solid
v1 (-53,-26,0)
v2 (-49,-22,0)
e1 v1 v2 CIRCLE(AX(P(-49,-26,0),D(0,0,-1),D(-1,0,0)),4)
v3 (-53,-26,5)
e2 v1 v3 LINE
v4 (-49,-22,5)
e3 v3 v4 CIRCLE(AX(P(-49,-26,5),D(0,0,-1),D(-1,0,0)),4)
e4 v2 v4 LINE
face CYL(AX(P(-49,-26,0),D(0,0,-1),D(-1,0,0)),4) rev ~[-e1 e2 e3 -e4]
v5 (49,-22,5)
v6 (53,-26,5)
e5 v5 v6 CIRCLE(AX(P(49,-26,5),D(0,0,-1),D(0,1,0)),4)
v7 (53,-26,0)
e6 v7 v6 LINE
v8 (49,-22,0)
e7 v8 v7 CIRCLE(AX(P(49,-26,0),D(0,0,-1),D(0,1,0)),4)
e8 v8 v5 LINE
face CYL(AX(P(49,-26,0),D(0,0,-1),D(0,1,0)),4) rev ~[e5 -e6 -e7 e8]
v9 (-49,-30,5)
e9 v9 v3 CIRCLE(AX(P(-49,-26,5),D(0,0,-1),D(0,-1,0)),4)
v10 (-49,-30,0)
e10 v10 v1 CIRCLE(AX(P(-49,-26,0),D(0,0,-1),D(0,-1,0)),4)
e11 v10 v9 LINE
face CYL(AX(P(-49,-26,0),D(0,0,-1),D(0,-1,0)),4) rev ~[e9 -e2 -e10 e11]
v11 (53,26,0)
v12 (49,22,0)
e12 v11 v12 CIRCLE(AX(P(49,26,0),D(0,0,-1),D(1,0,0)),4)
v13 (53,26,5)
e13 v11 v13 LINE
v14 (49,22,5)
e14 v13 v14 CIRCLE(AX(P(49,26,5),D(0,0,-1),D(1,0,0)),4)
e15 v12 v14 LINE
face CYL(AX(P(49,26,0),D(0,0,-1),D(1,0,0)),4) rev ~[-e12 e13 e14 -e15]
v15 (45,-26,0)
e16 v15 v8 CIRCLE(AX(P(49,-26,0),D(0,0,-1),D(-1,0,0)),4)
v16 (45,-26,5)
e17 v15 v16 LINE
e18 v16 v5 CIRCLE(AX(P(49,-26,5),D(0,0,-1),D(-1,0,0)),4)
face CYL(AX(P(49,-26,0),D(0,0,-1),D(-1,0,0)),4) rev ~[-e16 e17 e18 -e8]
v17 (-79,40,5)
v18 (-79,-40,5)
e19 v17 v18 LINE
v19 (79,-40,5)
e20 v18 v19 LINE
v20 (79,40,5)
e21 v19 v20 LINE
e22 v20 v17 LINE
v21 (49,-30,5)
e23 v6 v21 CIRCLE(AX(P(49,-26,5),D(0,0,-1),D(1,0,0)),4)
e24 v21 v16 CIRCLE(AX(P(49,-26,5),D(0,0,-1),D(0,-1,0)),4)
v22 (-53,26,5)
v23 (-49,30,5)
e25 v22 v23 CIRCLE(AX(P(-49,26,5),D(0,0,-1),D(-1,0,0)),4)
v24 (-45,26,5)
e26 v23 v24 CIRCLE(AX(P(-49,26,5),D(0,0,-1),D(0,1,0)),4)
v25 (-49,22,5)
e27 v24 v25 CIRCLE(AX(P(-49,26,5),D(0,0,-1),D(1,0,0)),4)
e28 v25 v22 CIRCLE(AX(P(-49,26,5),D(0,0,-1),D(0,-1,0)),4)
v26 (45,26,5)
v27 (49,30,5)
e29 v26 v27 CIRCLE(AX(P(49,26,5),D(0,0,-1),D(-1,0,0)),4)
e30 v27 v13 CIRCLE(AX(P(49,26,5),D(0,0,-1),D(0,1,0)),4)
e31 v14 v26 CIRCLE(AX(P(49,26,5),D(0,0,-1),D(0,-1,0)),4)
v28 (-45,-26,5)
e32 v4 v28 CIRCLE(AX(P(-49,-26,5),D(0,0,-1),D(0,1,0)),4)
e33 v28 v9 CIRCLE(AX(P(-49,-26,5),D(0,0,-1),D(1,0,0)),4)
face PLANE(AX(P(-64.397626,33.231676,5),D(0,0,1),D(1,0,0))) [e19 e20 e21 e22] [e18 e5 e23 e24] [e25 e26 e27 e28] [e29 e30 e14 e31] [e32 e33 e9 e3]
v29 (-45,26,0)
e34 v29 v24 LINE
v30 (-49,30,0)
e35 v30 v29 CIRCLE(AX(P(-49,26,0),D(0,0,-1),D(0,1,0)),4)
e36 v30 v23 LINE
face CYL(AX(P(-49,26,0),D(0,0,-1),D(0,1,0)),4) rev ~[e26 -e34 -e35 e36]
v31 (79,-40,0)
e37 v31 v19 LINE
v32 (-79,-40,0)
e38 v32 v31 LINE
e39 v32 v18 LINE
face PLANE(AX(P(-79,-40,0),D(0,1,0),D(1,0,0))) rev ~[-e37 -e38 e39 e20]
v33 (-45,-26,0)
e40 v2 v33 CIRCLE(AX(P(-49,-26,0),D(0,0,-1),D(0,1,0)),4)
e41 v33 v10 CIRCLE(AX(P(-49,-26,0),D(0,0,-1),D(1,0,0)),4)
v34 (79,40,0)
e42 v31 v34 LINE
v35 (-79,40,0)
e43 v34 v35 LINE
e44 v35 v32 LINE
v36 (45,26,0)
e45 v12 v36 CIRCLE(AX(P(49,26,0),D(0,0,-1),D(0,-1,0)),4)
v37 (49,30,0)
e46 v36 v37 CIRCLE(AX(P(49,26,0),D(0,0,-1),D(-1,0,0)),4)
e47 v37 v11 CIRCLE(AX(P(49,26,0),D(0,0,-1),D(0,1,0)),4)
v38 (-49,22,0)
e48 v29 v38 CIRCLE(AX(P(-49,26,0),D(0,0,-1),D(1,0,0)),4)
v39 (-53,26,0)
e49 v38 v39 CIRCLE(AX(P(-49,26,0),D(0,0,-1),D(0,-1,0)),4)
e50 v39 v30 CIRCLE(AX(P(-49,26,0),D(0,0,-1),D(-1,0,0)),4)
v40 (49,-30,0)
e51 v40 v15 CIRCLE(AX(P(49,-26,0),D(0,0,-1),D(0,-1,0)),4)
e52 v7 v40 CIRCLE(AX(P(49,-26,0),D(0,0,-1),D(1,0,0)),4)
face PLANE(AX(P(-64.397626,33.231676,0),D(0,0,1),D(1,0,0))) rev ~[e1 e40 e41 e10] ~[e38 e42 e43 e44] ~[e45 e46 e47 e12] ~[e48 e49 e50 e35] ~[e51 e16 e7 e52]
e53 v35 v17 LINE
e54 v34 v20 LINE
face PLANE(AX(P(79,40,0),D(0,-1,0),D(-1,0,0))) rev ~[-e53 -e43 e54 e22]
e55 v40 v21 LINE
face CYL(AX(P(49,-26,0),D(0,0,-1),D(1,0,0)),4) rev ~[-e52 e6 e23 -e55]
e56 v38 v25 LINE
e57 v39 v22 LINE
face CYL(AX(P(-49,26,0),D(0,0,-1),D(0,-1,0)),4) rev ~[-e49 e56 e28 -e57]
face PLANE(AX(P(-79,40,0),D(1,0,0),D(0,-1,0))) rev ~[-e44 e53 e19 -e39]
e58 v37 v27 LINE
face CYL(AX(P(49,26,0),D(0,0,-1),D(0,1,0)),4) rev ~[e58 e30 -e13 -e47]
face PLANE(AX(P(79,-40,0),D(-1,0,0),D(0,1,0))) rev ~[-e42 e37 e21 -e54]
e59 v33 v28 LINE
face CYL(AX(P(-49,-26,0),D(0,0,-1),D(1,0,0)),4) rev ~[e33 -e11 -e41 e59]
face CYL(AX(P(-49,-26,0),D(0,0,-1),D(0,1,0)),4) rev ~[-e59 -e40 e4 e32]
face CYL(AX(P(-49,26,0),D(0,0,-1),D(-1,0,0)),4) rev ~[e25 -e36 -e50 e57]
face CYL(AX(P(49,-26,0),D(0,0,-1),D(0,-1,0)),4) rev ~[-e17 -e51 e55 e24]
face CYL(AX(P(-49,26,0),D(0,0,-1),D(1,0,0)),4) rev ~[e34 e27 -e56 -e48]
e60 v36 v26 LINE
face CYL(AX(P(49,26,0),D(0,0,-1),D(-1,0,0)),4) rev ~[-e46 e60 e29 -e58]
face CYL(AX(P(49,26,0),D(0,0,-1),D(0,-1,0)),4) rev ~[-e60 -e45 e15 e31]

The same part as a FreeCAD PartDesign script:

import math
import FreeCAD as App
import Part
import Sketcher
from FreeCAD import Vector

doc = App.newDocument("Part")
params = doc.addObject("Spreadsheet::Sheet", "Params")
for row, (alias, value) in enumerate([
    ("sketch1_radius", "4 mm"),
    ("sketch1_width", "158 mm"),
    ("sketch1_height", "80 mm"),
    ("pad1_length", "5 mm"),
], start=1):
    params.set(f"A{row}", alias)
    params.set(f"B{row}", "=" + value)
    params.setAlias(f"B{row}", alias)

body = doc.addObject("PartDesign::Body", "Body")

# Sketch on XY plane
sketch1 = body.newObject("Sketcher::SketchObject", "Sketch")
sketch1.AttachmentSupport = (doc.getObject("XY_Plane"), [""])
sketch1.MapMode = "FlatFace"
sketch1.addGeometry(Part.LineSegment(Vector(-79, 40, 0), Vector(-79, -40, 0)), False)
sketch1.addGeometry(Part.LineSegment(Vector(-79, -40, 0), Vector(79, -40, 0)), False)
sketch1.addGeometry(Part.LineSegment(Vector(79, -40, 0), Vector(79, 40, 0)), False)
sketch1.addGeometry(Part.LineSegment(Vector(79, 40, 0), Vector(-79, 40, 0)), False)
sketch1.addGeometry(Part.ArcOfCircle(Part.Circle(Vector(-49, -26, 0), Vector(0, 0, 1), 4), math.radians(90), math.radians(180)), False)
sketch1.addGeometry(Part.ArcOfCircle(Part.Circle(Vector(-49, -26, 0), Vector(0, 0, 1), 4), math.radians(0), math.radians(90)), False)
sketch1.addGeometry(Part.ArcOfCircle(Part.Circle(Vector(-49, -26, 0), Vector(0, 0, 1), 4), math.radians(-90), math.radians(0)), False)
sketch1.addGeometry(Part.ArcOfCircle(Part.Circle(Vector(-49, -26, 0), Vector(0, 0, 1), 4), math.radians(180), math.radians(270)), False)
sketch1.addGeometry(Part.ArcOfCircle(Part.Circle(Vector(49, -26, 0), Vector(0, 0, 1), 4), math.radians(90), math.radians(180)), False)
sketch1.addGeometry(Part.ArcOfCircle(Part.Circle(Vector(49, -26, 0), Vector(0, 0, 1), 4), math.radians(0), math.radians(90)), False)
sketch1.addGeometry(Part.ArcOfCircle(Part.Circle(Vector(49, -26, 0), Vector(0, 0, 1), 4), math.radians(-90), math.radians(0)), False)
sketch1.addGeometry(Part.ArcOfCircle(Part.Circle(Vector(49, -26, 0), Vector(0, 0, 1), 4), math.radians(180), math.radians(270)), False)
sketch1.addGeometry(Part.ArcOfCircle(Part.Circle(Vector(49, 26, 0), Vector(0, 0, 1), 4), math.radians(180), math.radians(270)), False)
sketch1.addGeometry(Part.ArcOfCircle(Part.Circle(Vector(49, 26, 0), Vector(0, 0, 1), 4), math.radians(90), math.radians(180)), False)
sketch1.addGeometry(Part.ArcOfCircle(Part.Circle(Vector(49, 26, 0), Vector(0, 0, 1), 4), math.radians(0), math.radians(90)), False)
sketch1.addGeometry(Part.ArcOfCircle(Part.Circle(Vector(49, 26, 0), Vector(0, 0, 1), 4), math.radians(-90), math.radians(0)), False)
sketch1.addGeometry(Part.ArcOfCircle(Part.Circle(Vector(-49, 26, 0), Vector(0, 0, 1), 4), math.radians(-90), math.radians(0)), False)
sketch1.addGeometry(Part.ArcOfCircle(Part.Circle(Vector(-49, 26, 0), Vector(0, 0, 1), 4), math.radians(180), math.radians(270)), False)
sketch1.addGeometry(Part.ArcOfCircle(Part.Circle(Vector(-49, 26, 0), Vector(0, 0, 1), 4), math.radians(90), math.radians(180)), False)
sketch1.addGeometry(Part.ArcOfCircle(Part.Circle(Vector(-49, 26, 0), Vector(0, 0, 1), 4), math.radians(0), math.radians(90)), False)
sketch1.addConstraint(Sketcher.Constraint("Coincident", 0, 2, 1, 1))
sketch1.addConstraint(Sketcher.Constraint("Coincident", 1, 2, 2, 1))
sketch1.addConstraint(Sketcher.Constraint("Coincident", 2, 2, 3, 1))
sketch1.addConstraint(Sketcher.Constraint("Coincident", 3, 2, 0, 1))
sketch1.addConstraint(Sketcher.Constraint("Tangent", 4, 1, 5, 2))
sketch1.addConstraint(Sketcher.Constraint("Tangent", 5, 1, 6, 2))
sketch1.addConstraint(Sketcher.Constraint("Tangent", 6, 1, 7, 2))
sketch1.addConstraint(Sketcher.Constraint("Tangent", 7, 1, 4, 2))
sketch1.addConstraint(Sketcher.Constraint("Tangent", 8, 1, 9, 2))
sketch1.addConstraint(Sketcher.Constraint("Tangent", 9, 1, 10, 2))
sketch1.addConstraint(Sketcher.Constraint("Tangent", 10, 1, 11, 2))
sketch1.addConstraint(Sketcher.Constraint("Tangent", 11, 1, 8, 2))
sketch1.addConstraint(Sketcher.Constraint("Tangent", 12, 1, 13, 2))
sketch1.addConstraint(Sketcher.Constraint("Tangent", 13, 1, 14, 2))
sketch1.addConstraint(Sketcher.Constraint("Tangent", 14, 1, 15, 2))
sketch1.addConstraint(Sketcher.Constraint("Tangent", 15, 1, 12, 2))
sketch1.addConstraint(Sketcher.Constraint("Tangent", 16, 1, 17, 2))
sketch1.addConstraint(Sketcher.Constraint("Tangent", 17, 1, 18, 2))
sketch1.addConstraint(Sketcher.Constraint("Tangent", 18, 1, 19, 2))
sketch1.addConstraint(Sketcher.Constraint("Tangent", 19, 1, 16, 2))
sketch1.addConstraint(Sketcher.Constraint("Vertical", 0))
sketch1.addConstraint(Sketcher.Constraint("Horizontal", 1))
sketch1.addConstraint(Sketcher.Constraint("Vertical", 2))
sketch1.addConstraint(Sketcher.Constraint("Horizontal", 3))
sketch1.addConstraint(Sketcher.Constraint("Equal", 4, 5))
sketch1.addConstraint(Sketcher.Constraint("Equal", 7, 8))
sketch1.addConstraint(Sketcher.Constraint("Equal", 8, 9))
sketch1.addConstraint(Sketcher.Constraint("Equal", 11, 12))
sketch1.addConstraint(Sketcher.Constraint("Equal", 12, 13))
sketch1.addConstraint(Sketcher.Constraint("Equal", 15, 16))
sketch1.addConstraint(Sketcher.Constraint("Equal", 16, 17))
sketch1.addConstraint(Sketcher.Constraint("Symmetric", 4, 3, 12, 3, -1, 1))
sketch1.addConstraint(Sketcher.Constraint("Symmetric", 8, 3, 16, 3, -1, 1))
sketch1.addConstraint(Sketcher.Constraint("Symmetric", 0, 2, 2, 2, -1, 1))
sketch1.addConstraint(Sketcher.Constraint("Symmetric", 4, 3, 8, 3, -2))
sketch1.addConstraint(Sketcher.Constraint("Horizontal", 11, 3, 5, 1))
sketch1.addConstraint(Sketcher.Constraint("Horizontal", 5, 1, 7, 1))
sketch1.addConstraint(Sketcher.Constraint("Horizontal", 7, 1, 9, 1))
sketch1.addConstraint(Sketcher.Constraint("Horizontal", 9, 1, 11, 1))
sketch1.addConstraint(Sketcher.Constraint("Horizontal", 19, 3, 12, 1))
sketch1.addConstraint(Sketcher.Constraint("Horizontal", 12, 1, 14, 1))
sketch1.addConstraint(Sketcher.Constraint("Horizontal", 14, 1, 17, 1))
sketch1.addConstraint(Sketcher.Constraint("Horizontal", 17, 1, 19, 1))
sketch1.addConstraint(Sketcher.Constraint("Vertical", 19, 3, 4, 1))
sketch1.addConstraint(Sketcher.Constraint("Vertical", 4, 1, 6, 1))
sketch1.addConstraint(Sketcher.Constraint("Vertical", 15, 3, 8, 1))
sketch1.addConstraint(Sketcher.Constraint("Vertical", 8, 1, 10, 1))
sketch1.addConstraint(Sketcher.Constraint("Vertical", 10, 1, 13, 1))
sketch1.addConstraint(Sketcher.Constraint("Vertical", 13, 1, 15, 1))
sketch1.addConstraint(Sketcher.Constraint("Vertical", 6, 1, 16, 1))
sketch1.addConstraint(Sketcher.Constraint("Vertical", 16, 1, 18, 1))
sketch1.addConstraint(Sketcher.Constraint("Radius", 4, 4.0))
sketch1.addConstraint(Sketcher.Constraint("DistanceX", 1, 1, 1, 2, 158.0))
sketch1.addConstraint(Sketcher.Constraint("DistanceY", 0, 2, 0, 1, 80.0))
sketch1.addConstraint(Sketcher.Constraint("DistanceX", 4, 3, -1, 1, 49.0))
sketch1.addConstraint(Sketcher.Constraint("DistanceY", 4, 3, -1, 1, 26.0))
sketch1.setExpression("Constraints[51]", "Params.sketch1_radius")
sketch1.setExpression("Constraints[52]", "Params.sketch1_width")
sketch1.setExpression("Constraints[53]", "Params.sketch1_height")
pad1 = body.newObject("PartDesign::Pad", "Pad")
pad1.Profile = sketch1
pad1.setExpression("Length", "Params.pad1_length")

doc.recompute()
